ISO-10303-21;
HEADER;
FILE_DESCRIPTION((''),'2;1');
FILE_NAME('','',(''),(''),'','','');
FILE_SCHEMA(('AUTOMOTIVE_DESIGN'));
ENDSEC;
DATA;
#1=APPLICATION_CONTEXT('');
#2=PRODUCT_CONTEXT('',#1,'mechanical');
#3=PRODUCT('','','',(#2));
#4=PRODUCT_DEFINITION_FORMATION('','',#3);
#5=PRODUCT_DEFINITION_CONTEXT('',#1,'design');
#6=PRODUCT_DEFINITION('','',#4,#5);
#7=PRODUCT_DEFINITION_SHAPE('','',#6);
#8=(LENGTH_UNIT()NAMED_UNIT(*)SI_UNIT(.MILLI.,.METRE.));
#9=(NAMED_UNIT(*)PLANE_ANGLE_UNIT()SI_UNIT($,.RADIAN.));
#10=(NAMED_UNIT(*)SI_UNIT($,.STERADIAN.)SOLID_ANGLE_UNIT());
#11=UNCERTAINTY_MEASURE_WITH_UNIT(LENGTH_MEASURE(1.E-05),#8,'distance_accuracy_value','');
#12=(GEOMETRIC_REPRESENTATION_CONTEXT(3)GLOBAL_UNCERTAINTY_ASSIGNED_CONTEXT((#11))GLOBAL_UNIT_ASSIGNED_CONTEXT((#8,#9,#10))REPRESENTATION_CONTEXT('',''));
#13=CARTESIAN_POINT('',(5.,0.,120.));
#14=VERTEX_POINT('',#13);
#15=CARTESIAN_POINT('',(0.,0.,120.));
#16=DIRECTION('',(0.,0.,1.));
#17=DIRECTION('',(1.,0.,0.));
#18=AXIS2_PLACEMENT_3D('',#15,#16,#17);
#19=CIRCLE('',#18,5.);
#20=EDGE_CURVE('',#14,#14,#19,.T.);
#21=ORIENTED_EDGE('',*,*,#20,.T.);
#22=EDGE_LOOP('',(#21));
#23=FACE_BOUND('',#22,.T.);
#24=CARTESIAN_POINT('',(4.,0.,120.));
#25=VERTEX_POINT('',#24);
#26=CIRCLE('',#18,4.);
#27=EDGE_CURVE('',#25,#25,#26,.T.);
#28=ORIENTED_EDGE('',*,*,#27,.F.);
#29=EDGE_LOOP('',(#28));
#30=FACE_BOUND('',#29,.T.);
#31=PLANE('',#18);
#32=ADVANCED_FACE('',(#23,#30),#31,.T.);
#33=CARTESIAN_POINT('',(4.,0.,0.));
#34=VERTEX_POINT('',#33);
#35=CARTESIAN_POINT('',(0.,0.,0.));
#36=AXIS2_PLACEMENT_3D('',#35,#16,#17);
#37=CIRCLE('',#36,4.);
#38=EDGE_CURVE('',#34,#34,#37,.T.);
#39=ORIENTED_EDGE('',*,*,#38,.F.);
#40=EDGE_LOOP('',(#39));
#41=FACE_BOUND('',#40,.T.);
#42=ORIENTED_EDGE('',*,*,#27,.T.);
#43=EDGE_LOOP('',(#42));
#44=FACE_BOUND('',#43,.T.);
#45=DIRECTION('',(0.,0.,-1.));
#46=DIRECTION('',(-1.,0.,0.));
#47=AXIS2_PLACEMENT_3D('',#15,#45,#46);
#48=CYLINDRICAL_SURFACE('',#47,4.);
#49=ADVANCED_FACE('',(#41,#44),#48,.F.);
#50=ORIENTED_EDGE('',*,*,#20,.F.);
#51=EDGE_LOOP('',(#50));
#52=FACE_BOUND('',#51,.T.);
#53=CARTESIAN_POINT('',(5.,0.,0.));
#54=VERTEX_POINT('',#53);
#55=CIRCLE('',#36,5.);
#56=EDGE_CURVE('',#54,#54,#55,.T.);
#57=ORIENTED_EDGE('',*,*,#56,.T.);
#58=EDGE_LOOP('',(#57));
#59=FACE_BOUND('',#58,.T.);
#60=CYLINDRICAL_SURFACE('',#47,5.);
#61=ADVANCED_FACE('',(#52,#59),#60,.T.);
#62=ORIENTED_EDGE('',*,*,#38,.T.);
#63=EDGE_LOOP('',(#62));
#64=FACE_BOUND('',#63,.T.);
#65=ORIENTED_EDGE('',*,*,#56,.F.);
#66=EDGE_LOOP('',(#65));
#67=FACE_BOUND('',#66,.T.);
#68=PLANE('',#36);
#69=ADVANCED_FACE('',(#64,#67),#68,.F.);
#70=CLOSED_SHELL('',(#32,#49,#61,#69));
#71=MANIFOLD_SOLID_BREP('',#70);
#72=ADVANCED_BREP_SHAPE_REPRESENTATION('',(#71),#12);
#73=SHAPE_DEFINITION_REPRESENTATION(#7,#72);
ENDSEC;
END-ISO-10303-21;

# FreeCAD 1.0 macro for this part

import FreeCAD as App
import Part
import Sketcher

V = App.Vector

doc = App.newDocument("Part")
body = doc.addObject("PartDesign::Body", "Body")

sketch1 = body.newObject("Sketcher::SketchObject", "Sketch")
sketch1.AttachmentSupport = (doc.getObject("XY_Plane"), [""])
sketch1.MapMode = "FlatFace"
sketch1.addGeometry(Part.Circle(V(0, 0, 0), V(0, 0, 1), 5), False)
sketch1.addGeometry(Part.Circle(V(0, 0, 0), V(0, 0, 1), 4), False)
sketch1.addConstraint(Sketcher.Constraint("Coincident", 0, 3, -1, 1))
sketch1.addConstraint(Sketcher.Constraint("Coincident", 1, 3, -1, 1))
sketch1.addConstraint(Sketcher.Constraint("Diameter", 0, 10.0))
sketch1.addConstraint(Sketcher.Constraint("Diameter", 1, 8.0))
pad1 = body.newObject("PartDesign::Pad", "Pad")
pad1.Profile = sketch1
pad1.Length = 120

doc.recompute()
